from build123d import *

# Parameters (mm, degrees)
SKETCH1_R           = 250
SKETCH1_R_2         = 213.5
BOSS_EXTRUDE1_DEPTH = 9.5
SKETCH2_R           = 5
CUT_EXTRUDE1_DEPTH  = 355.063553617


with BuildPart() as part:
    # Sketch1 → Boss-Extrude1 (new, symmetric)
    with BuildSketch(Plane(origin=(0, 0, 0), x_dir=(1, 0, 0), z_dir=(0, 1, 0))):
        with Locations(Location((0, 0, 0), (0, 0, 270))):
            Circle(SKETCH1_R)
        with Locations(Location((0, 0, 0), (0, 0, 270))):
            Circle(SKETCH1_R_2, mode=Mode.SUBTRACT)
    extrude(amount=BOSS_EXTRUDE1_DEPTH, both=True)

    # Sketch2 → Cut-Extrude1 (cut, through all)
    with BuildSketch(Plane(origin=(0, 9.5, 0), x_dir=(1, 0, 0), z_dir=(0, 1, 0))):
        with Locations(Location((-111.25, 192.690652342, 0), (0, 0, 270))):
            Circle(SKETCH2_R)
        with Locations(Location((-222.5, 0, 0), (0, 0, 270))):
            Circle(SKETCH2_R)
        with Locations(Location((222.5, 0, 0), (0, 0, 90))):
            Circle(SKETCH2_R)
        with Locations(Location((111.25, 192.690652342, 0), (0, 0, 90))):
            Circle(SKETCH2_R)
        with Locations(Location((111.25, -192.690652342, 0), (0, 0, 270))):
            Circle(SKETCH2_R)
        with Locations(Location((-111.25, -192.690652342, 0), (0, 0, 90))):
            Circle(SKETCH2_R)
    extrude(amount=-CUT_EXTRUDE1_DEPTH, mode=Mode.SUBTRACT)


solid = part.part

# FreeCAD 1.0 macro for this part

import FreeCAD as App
import Part
import Sketcher

doc = App.newDocument("Part")
params = doc.addObject("Spreadsheet::Sheet", "Params")
for row, (alias, value) in enumerate([
    ("sketch1_diameter", "500 mm"),
    ("sketch1_diameter2", "427 mm"),
    ("pad1_length", "19 mm"),
    ("sketch2_diameter", "10 mm"),
], start=1):
    params.set(f"A{row}", alias)
    params.set(f"B{row}", "=" + value)
    params.setAlias(f"B{row}", alias)

body = doc.addObject("PartDesign::Body", "Body")

# Sketch on XZ plane
sketch1 = body.newObject("Sketcher::SketchObject", "Sketch")
sketch1.AttachmentSupport = (doc.getObject("XZ_Plane"), [""])
sketch1.MapMode = "FlatFace"
sketch1.addGeometry(Part.Circle(App.Vector(0, 0, 0), App.Vector(0, 0, 1), 250), False)
sketch1.addGeometry(Part.Circle(App.Vector(0, 0, 0), App.Vector(0, 0, 1), 214), False)
sketch1.addConstraint(Sketcher.Constraint("Coincident", 0, 3, -1, 1))
sketch1.addConstraint(Sketcher.Constraint("Coincident", 1, 3, -1, 1))
sketch1.addConstraint(Sketcher.Constraint("Diameter", 0, 500.0))
sketch1.addConstraint(Sketcher.Constraint("Diameter", 1, 427.0))
sketch1.setExpression("Constraints[2]", "Params.sketch1_diameter")
sketch1.setExpression("Constraints[3]", "Params.sketch1_diameter2")
pad1 = body.newObject("PartDesign::Pad", "Pad")
pad1.Profile = sketch1
pad1.setExpression("Length", "Params.pad1_length")
pad1.Midplane = True

# Sketch on XZ plane
sketch2 = body.newObject("Sketcher::SketchObject", "Sketch001")
sketch2.AttachmentSupport = (doc.getObject("XZ_Plane"), [""])
sketch2.MapMode = "FlatFace"
sketch2.AttachmentOffset = App.Placement(App.Vector(0, 0, -9.5), App.Rotation())
sketch2.addGeometry(Part.Circle(App.Vector(-111, -193, 0), App.Vector(0, 0, 1), 5), False)
sketch2.addGeometry(Part.Circle(App.Vector(-222, 0, 0), App.Vector(0, 0, 1), 5), False)
sketch2.addGeometry(Part.Circle(App.Vector(222, 0, 0), App.Vector(0, 0, 1), 5), False)
sketch2.addGeometry(Part.Circle(App.Vector(111, -193, 0), App.Vector(0, 0, 1), 5), False)
sketch2.addGeometry(Part.Circle(App.Vector(111, 193, 0), App.Vector(0, 0, 1), 5), False)
sketch2.addGeometry(Part.Circle(App.Vector(-111, 193, 0), App.Vector(0, 0, 1), 5), False)
sketch2.addConstraint(Sketcher.Constraint("Equal", 0, 1))
sketch2.addConstraint(Sketcher.Constraint("Equal", 1, 2))
sketch2.addConstraint(Sketcher.Constraint("Equal", 2, 3))
sketch2.addConstraint(Sketcher.Constraint("Equal", 3, 4))
sketch2.addConstraint(Sketcher.Constraint("Equal", 4, 5))
sketch2.addConstraint(Sketcher.Constraint("Symmetric", 1, 3, 2, 3, -1, 1))
sketch2.addConstraint(Sketcher.Constraint("Symmetric", 0, 3, 4, 3, -1, 1))
sketch2.addConstraint(Sketcher.Constraint("Symmetric", 3, 3, 5, 3, -1, 1))
sketch2.addConstraint(Sketcher.Constraint("Symmetric", 0, 3, 3, 3, -2))
sketch2.addConstraint(Sketcher.Constraint("PointOnObject", 1, 3, -1))
sketch2.addConstraint(Sketcher.Constraint("Diameter", 0, 10.0))
sketch2.addConstraint(Sketcher.Constraint("DistanceX", 1, 3, 2, 3, 445.0))
sketch2.addConstraint(Sketcher.Constraint("DistanceX", 0, 3, 3, 3, 222.5))
sketch2.addConstraint(Sketcher.Constraint("DistanceY", 0, 3, -1, 1, 192.690652))
sketch2.setExpression("Constraints[10]", "Params.sketch2_diameter")
pocket1 = body.newObject("PartDesign::Pocket", "Pocket")
pocket1.Profile = sketch2
pocket1.Type = "ThroughAll"
pocket1.Reversed = True

doc.recompute()
